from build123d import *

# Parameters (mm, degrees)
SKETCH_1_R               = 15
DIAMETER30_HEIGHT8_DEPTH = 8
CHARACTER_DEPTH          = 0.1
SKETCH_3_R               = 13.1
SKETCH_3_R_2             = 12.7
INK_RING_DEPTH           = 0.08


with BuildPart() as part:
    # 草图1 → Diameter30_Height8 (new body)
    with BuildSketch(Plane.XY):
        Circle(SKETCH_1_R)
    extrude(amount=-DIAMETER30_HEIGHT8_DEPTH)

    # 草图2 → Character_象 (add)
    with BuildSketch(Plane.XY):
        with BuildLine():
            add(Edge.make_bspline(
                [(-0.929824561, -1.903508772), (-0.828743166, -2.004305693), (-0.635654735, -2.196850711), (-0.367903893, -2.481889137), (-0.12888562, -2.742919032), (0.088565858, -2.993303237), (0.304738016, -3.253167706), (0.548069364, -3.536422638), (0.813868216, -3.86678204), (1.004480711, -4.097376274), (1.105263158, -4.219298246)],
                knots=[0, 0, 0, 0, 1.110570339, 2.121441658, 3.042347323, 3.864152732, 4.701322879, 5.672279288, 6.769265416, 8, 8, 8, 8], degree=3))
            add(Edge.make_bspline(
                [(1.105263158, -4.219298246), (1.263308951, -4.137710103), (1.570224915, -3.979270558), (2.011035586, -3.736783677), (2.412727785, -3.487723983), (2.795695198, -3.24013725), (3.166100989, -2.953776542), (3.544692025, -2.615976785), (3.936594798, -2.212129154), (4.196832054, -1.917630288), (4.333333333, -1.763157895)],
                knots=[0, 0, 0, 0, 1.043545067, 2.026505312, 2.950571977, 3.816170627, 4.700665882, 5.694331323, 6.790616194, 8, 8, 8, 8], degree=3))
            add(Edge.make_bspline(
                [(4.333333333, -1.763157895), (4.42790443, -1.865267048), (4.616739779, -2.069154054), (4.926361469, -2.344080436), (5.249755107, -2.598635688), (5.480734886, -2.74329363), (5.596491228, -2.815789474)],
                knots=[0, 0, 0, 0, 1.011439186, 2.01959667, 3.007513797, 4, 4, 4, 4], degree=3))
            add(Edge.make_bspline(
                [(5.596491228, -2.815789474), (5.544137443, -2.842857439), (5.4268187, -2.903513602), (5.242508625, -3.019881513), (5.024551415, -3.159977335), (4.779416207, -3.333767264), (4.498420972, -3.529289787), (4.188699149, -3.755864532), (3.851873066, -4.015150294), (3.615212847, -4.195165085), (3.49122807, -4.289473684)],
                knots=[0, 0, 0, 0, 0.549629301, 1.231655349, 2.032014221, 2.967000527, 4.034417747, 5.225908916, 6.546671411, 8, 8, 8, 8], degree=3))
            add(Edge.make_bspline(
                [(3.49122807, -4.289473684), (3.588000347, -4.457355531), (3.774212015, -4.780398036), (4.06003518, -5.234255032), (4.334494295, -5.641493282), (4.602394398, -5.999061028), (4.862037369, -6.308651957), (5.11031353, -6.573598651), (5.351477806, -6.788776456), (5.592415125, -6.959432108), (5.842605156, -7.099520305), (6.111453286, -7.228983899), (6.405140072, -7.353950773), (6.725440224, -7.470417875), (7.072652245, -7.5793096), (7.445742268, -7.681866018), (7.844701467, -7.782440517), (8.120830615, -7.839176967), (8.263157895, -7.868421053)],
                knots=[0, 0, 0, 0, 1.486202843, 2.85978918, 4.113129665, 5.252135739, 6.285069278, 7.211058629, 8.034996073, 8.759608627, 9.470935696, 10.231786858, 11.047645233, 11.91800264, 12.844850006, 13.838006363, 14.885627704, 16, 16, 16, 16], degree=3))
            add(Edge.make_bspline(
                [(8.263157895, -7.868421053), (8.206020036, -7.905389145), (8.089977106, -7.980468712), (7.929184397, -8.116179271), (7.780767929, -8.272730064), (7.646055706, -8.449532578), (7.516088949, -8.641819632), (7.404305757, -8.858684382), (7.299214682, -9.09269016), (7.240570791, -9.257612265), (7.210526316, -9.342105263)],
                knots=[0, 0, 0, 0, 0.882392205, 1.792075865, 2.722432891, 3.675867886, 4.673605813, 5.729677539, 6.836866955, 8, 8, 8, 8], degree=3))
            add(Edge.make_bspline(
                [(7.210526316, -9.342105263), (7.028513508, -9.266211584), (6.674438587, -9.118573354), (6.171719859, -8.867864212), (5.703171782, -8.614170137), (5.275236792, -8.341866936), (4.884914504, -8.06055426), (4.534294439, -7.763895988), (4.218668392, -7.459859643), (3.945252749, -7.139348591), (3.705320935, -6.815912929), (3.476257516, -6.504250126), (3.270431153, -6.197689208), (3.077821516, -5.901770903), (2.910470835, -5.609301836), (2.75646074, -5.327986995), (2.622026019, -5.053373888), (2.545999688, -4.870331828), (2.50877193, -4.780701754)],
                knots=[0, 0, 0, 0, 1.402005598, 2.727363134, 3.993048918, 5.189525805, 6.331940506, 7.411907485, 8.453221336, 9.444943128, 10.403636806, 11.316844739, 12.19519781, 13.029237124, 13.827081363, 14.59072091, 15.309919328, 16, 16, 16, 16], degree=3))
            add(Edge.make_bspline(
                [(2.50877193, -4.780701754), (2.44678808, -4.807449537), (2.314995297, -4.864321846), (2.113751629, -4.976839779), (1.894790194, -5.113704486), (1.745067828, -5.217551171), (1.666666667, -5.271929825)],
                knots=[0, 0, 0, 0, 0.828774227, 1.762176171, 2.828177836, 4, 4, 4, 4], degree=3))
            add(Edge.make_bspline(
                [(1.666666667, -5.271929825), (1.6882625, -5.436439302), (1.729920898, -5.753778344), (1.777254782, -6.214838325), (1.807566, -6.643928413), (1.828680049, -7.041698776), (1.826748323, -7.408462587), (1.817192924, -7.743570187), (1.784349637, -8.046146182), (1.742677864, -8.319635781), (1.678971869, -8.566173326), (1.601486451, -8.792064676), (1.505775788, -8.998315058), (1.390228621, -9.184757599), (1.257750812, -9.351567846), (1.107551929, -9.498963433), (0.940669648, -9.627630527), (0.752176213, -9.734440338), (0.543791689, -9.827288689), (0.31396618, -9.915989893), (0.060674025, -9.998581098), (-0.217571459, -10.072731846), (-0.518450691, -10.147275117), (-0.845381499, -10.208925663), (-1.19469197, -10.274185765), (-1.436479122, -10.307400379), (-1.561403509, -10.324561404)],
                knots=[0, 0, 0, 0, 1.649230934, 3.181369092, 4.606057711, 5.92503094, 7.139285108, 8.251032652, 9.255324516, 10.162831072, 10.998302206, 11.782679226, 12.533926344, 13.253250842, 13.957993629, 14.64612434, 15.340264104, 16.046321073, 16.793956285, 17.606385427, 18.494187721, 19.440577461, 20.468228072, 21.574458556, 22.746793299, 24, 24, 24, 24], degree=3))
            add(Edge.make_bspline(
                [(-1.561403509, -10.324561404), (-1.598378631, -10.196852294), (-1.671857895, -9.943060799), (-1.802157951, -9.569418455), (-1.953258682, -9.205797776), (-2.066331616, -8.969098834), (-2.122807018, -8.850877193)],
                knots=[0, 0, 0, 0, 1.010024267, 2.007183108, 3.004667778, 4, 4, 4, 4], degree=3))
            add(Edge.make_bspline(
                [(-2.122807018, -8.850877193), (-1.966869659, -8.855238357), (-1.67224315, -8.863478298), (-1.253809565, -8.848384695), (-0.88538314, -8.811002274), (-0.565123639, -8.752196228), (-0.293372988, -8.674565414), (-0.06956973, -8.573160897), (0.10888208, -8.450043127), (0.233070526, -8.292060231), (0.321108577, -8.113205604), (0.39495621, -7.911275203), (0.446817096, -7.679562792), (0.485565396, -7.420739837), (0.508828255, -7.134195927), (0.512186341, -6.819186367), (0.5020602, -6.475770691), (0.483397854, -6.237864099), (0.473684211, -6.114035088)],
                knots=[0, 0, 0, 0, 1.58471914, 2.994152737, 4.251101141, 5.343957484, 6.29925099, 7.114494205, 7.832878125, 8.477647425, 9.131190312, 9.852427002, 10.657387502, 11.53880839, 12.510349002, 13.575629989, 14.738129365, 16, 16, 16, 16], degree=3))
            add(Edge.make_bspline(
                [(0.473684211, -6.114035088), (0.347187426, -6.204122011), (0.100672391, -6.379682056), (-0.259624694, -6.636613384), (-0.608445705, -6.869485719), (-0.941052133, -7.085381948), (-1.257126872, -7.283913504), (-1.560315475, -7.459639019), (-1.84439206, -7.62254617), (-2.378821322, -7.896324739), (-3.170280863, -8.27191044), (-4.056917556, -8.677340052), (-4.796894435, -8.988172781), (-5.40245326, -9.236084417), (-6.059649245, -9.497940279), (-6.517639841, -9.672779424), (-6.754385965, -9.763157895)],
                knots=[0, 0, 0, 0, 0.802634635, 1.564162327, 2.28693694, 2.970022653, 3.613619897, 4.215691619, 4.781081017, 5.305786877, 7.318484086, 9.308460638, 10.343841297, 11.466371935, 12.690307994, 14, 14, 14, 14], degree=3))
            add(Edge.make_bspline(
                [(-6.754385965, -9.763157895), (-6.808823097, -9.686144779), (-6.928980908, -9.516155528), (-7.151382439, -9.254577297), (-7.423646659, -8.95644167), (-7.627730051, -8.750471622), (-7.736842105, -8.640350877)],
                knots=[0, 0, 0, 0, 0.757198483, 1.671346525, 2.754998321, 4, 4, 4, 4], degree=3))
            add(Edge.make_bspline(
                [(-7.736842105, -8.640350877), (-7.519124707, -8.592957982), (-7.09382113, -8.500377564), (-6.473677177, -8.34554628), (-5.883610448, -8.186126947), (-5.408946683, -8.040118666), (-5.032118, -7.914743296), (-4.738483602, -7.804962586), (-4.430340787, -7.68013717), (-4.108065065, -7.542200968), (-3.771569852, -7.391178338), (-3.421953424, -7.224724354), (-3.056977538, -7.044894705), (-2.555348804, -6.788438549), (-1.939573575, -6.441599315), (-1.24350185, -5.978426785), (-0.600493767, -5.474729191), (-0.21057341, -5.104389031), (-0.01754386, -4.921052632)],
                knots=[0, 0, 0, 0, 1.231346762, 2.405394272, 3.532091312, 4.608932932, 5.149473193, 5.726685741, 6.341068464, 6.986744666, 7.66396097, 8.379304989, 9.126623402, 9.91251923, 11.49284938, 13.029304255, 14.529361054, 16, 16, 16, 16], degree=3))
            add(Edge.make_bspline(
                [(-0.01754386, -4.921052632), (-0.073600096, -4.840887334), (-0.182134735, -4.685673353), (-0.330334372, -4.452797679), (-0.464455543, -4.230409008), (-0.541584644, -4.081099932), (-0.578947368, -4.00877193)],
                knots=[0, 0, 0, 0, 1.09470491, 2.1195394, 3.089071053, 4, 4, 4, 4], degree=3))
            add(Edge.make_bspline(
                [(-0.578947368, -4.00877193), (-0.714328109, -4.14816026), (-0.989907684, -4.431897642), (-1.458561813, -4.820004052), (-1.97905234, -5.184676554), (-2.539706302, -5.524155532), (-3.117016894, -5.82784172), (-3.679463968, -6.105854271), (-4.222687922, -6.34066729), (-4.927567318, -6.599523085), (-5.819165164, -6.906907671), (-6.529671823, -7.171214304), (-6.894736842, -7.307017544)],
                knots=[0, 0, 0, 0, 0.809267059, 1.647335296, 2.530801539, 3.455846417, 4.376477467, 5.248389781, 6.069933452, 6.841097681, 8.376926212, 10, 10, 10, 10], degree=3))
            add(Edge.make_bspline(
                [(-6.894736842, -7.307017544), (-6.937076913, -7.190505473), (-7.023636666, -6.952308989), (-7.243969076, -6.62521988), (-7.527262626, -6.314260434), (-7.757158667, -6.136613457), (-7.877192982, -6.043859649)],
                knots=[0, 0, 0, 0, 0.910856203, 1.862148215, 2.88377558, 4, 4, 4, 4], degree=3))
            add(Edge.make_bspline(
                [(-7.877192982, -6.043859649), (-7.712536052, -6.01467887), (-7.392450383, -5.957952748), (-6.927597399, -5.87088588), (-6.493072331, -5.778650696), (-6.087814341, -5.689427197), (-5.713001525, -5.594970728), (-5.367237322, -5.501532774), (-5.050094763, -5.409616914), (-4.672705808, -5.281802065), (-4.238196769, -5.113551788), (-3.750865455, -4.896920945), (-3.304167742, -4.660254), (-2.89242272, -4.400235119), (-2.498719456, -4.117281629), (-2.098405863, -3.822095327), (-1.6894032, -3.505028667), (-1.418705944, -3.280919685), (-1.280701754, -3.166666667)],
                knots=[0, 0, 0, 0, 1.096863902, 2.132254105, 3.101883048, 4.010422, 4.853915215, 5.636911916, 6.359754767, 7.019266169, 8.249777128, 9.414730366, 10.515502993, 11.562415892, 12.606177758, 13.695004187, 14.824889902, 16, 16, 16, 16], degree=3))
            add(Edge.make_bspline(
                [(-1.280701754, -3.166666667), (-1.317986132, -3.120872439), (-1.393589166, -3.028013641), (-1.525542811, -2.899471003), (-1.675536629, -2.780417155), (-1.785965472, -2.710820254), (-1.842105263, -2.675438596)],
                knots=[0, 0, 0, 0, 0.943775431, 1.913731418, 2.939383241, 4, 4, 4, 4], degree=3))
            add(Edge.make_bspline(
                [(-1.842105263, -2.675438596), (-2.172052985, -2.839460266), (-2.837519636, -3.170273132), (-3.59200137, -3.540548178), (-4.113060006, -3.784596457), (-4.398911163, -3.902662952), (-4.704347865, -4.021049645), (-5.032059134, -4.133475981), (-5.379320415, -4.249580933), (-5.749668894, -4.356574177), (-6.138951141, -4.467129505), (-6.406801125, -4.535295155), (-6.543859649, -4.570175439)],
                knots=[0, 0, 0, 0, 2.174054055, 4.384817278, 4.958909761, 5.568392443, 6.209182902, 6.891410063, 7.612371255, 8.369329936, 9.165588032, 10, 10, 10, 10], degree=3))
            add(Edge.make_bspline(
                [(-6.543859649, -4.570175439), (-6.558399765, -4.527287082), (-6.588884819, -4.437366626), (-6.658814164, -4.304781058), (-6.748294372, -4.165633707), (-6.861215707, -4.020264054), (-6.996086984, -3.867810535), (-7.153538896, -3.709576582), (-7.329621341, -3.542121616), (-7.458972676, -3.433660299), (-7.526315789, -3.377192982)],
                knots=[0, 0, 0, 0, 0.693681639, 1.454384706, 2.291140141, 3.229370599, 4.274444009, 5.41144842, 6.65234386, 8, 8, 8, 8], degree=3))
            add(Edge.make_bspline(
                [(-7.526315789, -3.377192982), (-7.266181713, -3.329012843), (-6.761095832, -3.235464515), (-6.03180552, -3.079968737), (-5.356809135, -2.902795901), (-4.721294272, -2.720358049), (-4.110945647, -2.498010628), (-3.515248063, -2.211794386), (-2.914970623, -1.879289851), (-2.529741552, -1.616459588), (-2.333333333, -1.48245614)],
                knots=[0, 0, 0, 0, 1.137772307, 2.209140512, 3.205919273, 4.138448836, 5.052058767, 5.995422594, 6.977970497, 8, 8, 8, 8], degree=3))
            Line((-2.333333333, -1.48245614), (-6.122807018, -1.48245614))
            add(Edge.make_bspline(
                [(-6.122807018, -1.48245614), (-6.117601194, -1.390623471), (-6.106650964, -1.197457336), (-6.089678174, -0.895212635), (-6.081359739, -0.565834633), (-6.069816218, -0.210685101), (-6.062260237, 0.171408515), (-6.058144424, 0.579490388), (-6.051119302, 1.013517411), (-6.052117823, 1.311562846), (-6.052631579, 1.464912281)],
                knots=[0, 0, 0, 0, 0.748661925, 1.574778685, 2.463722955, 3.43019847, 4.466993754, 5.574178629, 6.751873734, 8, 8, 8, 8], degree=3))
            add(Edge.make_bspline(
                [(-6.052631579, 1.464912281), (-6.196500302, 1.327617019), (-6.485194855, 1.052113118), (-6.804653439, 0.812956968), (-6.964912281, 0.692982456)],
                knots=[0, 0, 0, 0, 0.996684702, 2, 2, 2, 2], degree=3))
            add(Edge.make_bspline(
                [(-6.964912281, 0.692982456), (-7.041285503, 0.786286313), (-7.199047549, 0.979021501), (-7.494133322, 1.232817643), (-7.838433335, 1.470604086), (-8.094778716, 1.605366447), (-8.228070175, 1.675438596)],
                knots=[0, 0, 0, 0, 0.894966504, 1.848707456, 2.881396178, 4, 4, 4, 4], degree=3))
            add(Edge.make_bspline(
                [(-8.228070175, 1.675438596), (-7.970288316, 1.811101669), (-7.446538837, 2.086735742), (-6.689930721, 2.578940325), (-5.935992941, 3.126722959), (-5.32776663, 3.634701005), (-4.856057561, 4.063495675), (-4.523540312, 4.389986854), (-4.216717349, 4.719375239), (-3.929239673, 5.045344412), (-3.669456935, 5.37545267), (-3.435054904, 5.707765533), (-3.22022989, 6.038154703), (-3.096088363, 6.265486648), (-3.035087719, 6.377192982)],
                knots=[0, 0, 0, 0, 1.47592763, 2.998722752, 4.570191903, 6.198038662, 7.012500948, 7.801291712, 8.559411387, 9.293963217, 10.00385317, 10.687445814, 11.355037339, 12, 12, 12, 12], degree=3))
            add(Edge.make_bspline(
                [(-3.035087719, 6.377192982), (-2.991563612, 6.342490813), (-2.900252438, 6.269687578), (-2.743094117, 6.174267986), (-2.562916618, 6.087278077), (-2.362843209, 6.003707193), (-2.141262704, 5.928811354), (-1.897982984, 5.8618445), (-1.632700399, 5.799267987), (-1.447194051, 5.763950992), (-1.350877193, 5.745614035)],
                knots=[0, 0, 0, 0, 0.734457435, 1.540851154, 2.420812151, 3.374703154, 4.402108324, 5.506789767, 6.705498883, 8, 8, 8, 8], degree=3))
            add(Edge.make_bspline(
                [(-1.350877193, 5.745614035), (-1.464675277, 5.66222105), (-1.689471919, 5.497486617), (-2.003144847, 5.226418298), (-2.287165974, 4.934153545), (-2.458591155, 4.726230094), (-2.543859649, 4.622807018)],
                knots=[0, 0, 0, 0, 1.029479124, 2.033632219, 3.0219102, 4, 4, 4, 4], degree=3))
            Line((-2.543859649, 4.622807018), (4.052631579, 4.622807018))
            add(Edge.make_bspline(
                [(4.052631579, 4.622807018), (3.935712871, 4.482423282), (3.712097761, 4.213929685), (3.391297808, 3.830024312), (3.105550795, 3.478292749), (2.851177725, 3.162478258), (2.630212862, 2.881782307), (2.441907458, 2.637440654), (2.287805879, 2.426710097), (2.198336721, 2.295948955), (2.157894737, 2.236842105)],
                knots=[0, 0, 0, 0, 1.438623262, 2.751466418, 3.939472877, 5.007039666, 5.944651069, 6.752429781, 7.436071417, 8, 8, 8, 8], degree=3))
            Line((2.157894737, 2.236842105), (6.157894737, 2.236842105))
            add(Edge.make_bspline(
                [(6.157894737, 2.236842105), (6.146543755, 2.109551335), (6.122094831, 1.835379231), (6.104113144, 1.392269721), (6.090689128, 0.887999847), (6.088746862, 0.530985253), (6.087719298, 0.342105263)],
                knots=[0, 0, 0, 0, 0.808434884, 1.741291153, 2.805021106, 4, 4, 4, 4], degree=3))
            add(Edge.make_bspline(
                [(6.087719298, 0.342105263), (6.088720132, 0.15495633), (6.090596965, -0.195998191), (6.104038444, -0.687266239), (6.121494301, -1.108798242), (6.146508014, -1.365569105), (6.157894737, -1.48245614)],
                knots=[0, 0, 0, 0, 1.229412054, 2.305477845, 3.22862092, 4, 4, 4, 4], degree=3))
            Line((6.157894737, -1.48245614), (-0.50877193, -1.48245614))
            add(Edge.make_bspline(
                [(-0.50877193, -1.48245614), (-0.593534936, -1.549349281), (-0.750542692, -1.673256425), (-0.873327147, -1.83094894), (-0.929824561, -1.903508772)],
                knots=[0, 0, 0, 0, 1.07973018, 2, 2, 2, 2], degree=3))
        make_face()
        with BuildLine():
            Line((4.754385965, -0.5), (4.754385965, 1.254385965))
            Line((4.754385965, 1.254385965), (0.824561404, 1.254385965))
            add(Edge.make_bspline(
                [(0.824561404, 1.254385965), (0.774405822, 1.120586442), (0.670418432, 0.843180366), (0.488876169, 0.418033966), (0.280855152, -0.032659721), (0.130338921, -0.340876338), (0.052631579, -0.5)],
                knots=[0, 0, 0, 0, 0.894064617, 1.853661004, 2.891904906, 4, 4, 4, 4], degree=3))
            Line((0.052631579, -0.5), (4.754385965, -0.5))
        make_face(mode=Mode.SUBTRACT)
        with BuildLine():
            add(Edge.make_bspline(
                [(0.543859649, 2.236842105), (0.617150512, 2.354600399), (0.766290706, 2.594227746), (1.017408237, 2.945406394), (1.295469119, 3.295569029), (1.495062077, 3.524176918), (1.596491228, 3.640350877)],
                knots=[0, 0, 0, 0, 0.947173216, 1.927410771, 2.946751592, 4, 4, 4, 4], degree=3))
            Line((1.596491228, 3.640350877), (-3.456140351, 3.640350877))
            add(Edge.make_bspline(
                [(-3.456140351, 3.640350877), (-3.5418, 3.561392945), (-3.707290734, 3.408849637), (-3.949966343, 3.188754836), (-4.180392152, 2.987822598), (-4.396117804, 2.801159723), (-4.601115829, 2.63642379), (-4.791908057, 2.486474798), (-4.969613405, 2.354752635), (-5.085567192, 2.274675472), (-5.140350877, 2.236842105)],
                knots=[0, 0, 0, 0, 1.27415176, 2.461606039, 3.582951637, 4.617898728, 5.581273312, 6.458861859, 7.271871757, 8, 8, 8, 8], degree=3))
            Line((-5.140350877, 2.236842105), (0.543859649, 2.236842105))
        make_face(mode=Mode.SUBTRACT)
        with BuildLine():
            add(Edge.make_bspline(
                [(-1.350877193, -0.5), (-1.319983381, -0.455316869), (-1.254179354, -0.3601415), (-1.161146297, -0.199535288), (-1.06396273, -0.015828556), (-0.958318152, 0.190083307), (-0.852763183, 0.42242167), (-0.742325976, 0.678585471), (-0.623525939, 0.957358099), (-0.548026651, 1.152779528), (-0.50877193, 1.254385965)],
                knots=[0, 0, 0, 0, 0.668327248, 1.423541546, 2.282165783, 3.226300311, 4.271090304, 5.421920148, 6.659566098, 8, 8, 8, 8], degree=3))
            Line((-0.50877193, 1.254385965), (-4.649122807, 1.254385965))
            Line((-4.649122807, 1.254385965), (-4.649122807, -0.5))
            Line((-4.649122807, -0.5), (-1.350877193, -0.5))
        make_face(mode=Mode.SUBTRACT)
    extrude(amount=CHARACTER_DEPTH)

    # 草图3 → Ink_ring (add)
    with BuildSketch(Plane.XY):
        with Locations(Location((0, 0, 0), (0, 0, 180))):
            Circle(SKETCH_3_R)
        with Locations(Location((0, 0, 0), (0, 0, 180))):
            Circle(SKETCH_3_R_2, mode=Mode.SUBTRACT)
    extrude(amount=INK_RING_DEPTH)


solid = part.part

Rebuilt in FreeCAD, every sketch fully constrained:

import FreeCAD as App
import Part
import Sketcher

V = App.Vector

doc = App.newDocument("Part")
body = doc.addObject("PartDesign::Body", "Body")

# Sketch on XY plane
sketch1 = doc.addObject("Sketcher::SketchObject", "Sketch")
body.addObject(sketch1)
sketch1.AttachmentSupport = (doc.XY_Plane, [""])
sketch1.MapMode = "FlatFace"
sketch1.addGeometry(Part.Circle(V(0, 0, 0), V(0, 0, 1), 15), False)
sketch1.addConstraint(Sketcher.Constraint("Coincident", 0, 3, -1, 1))
sketch1.addConstraint(Sketcher.Constraint("Diameter", 0, 30.0))
pad1 = doc.addObject("PartDesign::Pad", "Pad")
body.addObject(pad1)
pad1.Profile = sketch1
pad1.Length = 8
pad1.Reversed = True

# Sketch on XY plane
sketch2 = doc.addObject("Sketcher::SketchObject", "Sketch001")
body.addObject(sketch2)
sketch2.AttachmentSupport = (doc.XY_Plane, [""])
sketch2.MapMode = "FlatFace"
sketch2.addGeometry(Part.BSplineCurve([V(-0.929825, -1.903509, 0), V(-0.828743, -2.004306, 0), V(-0.635655, -2.196851, 0), V(-0.367904, -2.481889, 0), V(-0.128886, -2.742919, 0), V(0.088566, -2.993303, 0), V(0.304738, -3.253168, 0), V(0.548069, -3.536423, 0), V(0.813868, -3.866782, 0), V(1.004481, -4.097376, 0), V(1.105263, -4.219298, 0)], [4, 1, 1, 1, 1, 1, 1, 1, 4], [0, 1.110570339, 2.121441658, 3.042347323, 3.864152732, 4.701322879, 5.672279288, 6.769265416, 8], False, 3, [1, 1, 1, 1, 1, 1, 1, 1, 1, 1, 1], False), False)
sketch2.addGeometry(Part.BSplineCurve([V(-0.508772, -1.482456, 0), V(-0.593535, -1.549349, 0), V(-0.750543, -1.673256, 0), V(-0.873327, -1.830949, 0), V(-0.929825, -1.903509, 0)], [4, 1, 4], [0, 1.07973018, 2], False, 3, [1, 1, 1, 1, 1], False), False)
sketch2.addGeometry(Part.LineSegment(V(-0.508772, -1.482456, 0), V(6.157895, -1.482456, 0)), False)
sketch2.addGeometry(Part.BSplineCurve([V(6.087719, 0.342105, 0), V(6.08872, 0.154956, 0), V(6.090597, -0.195998, 0), V(6.104038, -0.687266, 0), V(6.121494, -1.108798, 0), V(6.146508, -1.365569, 0), V(6.157895, -1.482456, 0)], [4, 1, 1, 1, 4], [0, 1.229412054, 2.305477845, 3.22862092, 4], False, 3, [1, 1, 1, 1, 1, 1, 1], False), False)
sketch2.addGeometry(Part.BSplineCurve([V(6.157895, 2.236842, 0), V(6.146544, 2.109551, 0), V(6.122095, 1.835379, 0), V(6.104113, 1.39227, 0), V(6.090689, 0.888, 0), V(6.088747, 0.530985, 0), V(6.087719, 0.342105, 0)], [4, 1, 1, 1, 4], [0, 0.808434884, 1.741291153, 2.805021106, 4], False, 3, [1, 1, 1, 1, 1, 1, 1], False), False)
sketch2.addGeometry(Part.LineSegment(V(6.157895, 2.236842, 0), V(2.157895, 2.236842, 0)), False)
sketch2.addGeometry(Part.BSplineCurve([V(4.052632, 4.622807, 0), V(3.935713, 4.482423, 0), V(3.712098, 4.21393, 0), V(3.391298, 3.830024, 0), V(3.105551, 3.478293, 0), V(2.851178, 3.162478, 0), V(2.630213, 2.881782, 0), V(2.441907, 2.637441, 0), V(2.287806, 2.42671, 0), V(2.198337, 2.295949, 0), V(2.157895, 2.236842, 0)], [4, 1, 1, 1, 1, 1, 1, 1, 4], [0, 1.438623262, 2.751466418, 3.939472877, 5.007039666, 5.944651069, 6.752429781, 7.436071417, 8], False, 3, [1, 1, 1, 1, 1, 1, 1, 1, 1, 1, 1], False), False)
sketch2.addGeometry(Part.LineSegment(V(4.052632, 4.622807, 0), V(-2.54386, 4.622807, 0)), False)
sketch2.addGeometry(Part.BSplineCurve([V(-1.350877, 5.745614, 0), V(-1.464675, 5.662221, 0), V(-1.689472, 5.497487, 0), V(-2.003145, 5.226418, 0), V(-2.287166, 4.934154, 0), V(-2.458591, 4.72623, 0), V(-2.54386, 4.622807, 0)], [4, 1, 1, 1, 4], [0, 1.029479124, 2.033632219, 3.0219102, 4], False, 3, [1, 1, 1, 1, 1, 1, 1], False), False)
sketch2.addGeometry(Part.BSplineCurve([V(-3.035088, 6.377193, 0), V(-2.991564, 6.342491, 0), V(-2.900252, 6.269688, 0), V(-2.743094, 6.174268, 0), V(-2.562917, 6.087278, 0), V(-2.362843, 6.003707, 0), V(-2.141263, 5.928811, 0), V(-1.897983, 5.861845, 0), V(-1.6327, 5.799268, 0), V(-1.447194, 5.763951, 0), V(-1.350877, 5.745614, 0)], [4, 1, 1, 1, 1, 1, 1, 1, 4], [0, 0.734457435, 1.540851154, 2.420812151, 3.374703154, 4.402108324, 5.506789767, 6.705498883, 8], False, 3, [1, 1, 1, 1, 1, 1, 1, 1, 1, 1, 1], False), False)
sketch2.addGeometry(Part.BSplineCurve([V(-8.22807, 1.675439, 0), V(-7.970288, 1.811102, 0), V(-7.446539, 2.086736, 0), V(-6.689931, 2.57894, 0), V(-5.935993, 3.126723, 0), V(-5.327767, 3.634701, 0), V(-4.856058, 4.063496, 0), V(-4.52354, 4.389987, 0), V(-4.216717, 4.719375, 0), V(-3.92924, 5.045344, 0), V(-3.669457, 5.375453, 0), V(-3.435055, 5.707766, 0), V(-3.22023, 6.038155, 0), V(-3.096088, 6.265487, 0), V(-3.035088, 6.377193, 0)], [4, 1, 1, 1, 1, 1, 1, 1, 1, 1, 1, 1, 4], [0, 1.47592763, 2.998722752, 4.570191903, 6.198038662, 7.012500948, 7.801291712, 8.559411387, 9.293963217, 10.00385317, 10.687445814, 11.355037339, 12], False, 3, [1, 1, 1, 1, 1, 1, 1, 1, 1, 1, 1, 1, 1, 1, 1], False), False)
sketch2.addGeometry(Part.BSplineCurve([V(-6.964912, 0.692982, 0), V(-7.041286, 0.786286, 0), V(-7.199048, 0.979022, 0), V(-7.494133, 1.232818, 0), V(-7.838433, 1.470604, 0), V(-8.094779, 1.605366, 0), V(-8.22807, 1.675439, 0)], [4, 1, 1, 1, 4], [0, 0.894966504, 1.848707456, 2.881396178, 4], False, 3, [1, 1, 1, 1, 1, 1, 1], False), False)
sketch2.addGeometry(Part.BSplineCurve([V(-6.052632, 1.464912, 0), V(-6.1965, 1.327617, 0), V(-6.485195, 1.052113, 0), V(-6.804653, 0.812957, 0), V(-6.964912, 0.692982, 0)], [4, 1, 4], [0, 0.996684702, 2], False, 3, [1, 1, 1, 1, 1], False), False)
sketch2.addGeometry(Part.BSplineCurve([V(-6.122807, -1.482456, 0), V(-6.117601, -1.390623, 0), V(-6.106651, -1.197457, 0), V(-6.089678, -0.895213, 0), V(-6.08136, -0.565835, 0), V(-6.069816, -0.210685, 0), V(-6.06226, 0.171409, 0), V(-6.058144, 0.57949, 0), V(-6.051119, 1.013517, 0), V(-6.052118, 1.311563, 0), V(-6.052632, 1.464912, 0)], [4, 1, 1, 1, 1, 1, 1, 1, 4], [0, 0.748661925, 1.574778685, 2.463722955, 3.43019847, 4.466993754, 5.574178629, 6.751873734, 8], False, 3, [1, 1, 1, 1, 1, 1, 1, 1, 1, 1, 1], False), False)
sketch2.addGeometry(Part.LineSegment(V(-6.122807, -1.482456, 0), V(-2.333333, -1.482456, 0)), False)
sketch2.addGeometry(Part.BSplineCurve([V(-7.526316, -3.377193, 0), V(-7.266182, -3.329013, 0), V(-6.761096, -3.235465, 0), V(-6.031806, -3.079969, 0), V(-5.356809, -2.902796, 0), V(-4.721294, -2.720358, 0), V(-4.110946, -2.498011, 0), V(-3.515248, -2.211794, 0), V(-2.914971, -1.87929, 0), V(-2.529742, -1.61646, 0), V(-2.333333, -1.482456, 0)], [4, 1, 1, 1, 1, 1, 1, 1, 4], [0, 1.137772307, 2.209140512, 3.205919273, 4.138448836, 5.052058767, 5.995422594, 6.977970497, 8], False, 3, [1, 1, 1, 1, 1, 1, 1, 1, 1, 1, 1], False), False)
sketch2.addGeometry(Part.BSplineCurve([V(-6.54386, -4.570175, 0), V(-6.5584, -4.527287, 0), V(-6.588885, -4.437367, 0), V(-6.658814, -4.304781, 0), V(-6.748294, -4.165634, 0), V(-6.861216, -4.020264, 0), V(-6.996087, -3.867811, 0), V(-7.153539, -3.709577, 0), V(-7.329621, -3.542122, 0), V(-7.458973, -3.43366, 0), V(-7.526316, -3.377193, 0)], [4, 1, 1, 1, 1, 1, 1, 1, 4], [0, 0.693681639, 1.454384706, 2.291140141, 3.229370599, 4.274444009, 5.41144842, 6.65234386, 8], False, 3, [1, 1, 1, 1, 1, 1, 1, 1, 1, 1, 1], False), False)
sketch2.addGeometry(Part.BSplineCurve([V(-1.842105, -2.675439, 0), V(-2.172053, -2.83946, 0), V(-2.83752, -3.170273, 0), V(-3.592001, -3.540548, 0), V(-4.11306, -3.784596, 0), V(-4.398911, -3.902663, 0), V(-4.704348, -4.02105, 0), V(-5.032059, -4.133476, 0), V(-5.37932, -4.249581, 0), V(-5.749669, -4.356574, 0), V(-6.138951, -4.46713, 0), V(-6.406801, -4.535295, 0), V(-6.54386, -4.570175, 0)], [4, 1, 1, 1, 1, 1, 1, 1, 1, 1, 4], [0, 2.174054055, 4.384817278, 4.958909761, 5.568392443, 6.209182902, 6.891410063, 7.612371255, 8.369329936, 9.165588032, 10], False, 3, [1, 1, 1, 1, 1, 1, 1, 1, 1, 1, 1, 1, 1], False), False)
sketch2.addGeometry(Part.BSplineCurve([V(-1.280702, -3.166667, 0), V(-1.317986, -3.120872, 0), V(-1.393589, -3.028014, 0), V(-1.525543, -2.899471, 0), V(-1.675537, -2.780417, 0), V(-1.785965, -2.71082, 0), V(-1.842105, -2.675439, 0)], [4, 1, 1, 1, 4], [0, 0.943775431, 1.913731418, 2.939383241, 4], False, 3, [1, 1, 1, 1, 1, 1, 1], False), False)
sketch2.addGeometry(Part.BSplineCurve([V(-7.877193, -6.04386, 0), V(-7.712536, -6.014679, 0), V(-7.39245, -5.957953, 0), V(-6.927597, -5.870886, 0), V(-6.493072, -5.778651, 0), V(-6.087814, -5.689427, 0), V(-5.713002, -5.594971, 0), V(-5.367237, -5.501533, 0), V(-5.050095, -5.409617, 0), V(-4.672706, -5.281802, 0), V(-4.238197, -5.113552, 0), V(-3.750865, -4.896921, 0), V(-3.304168, -4.660254, 0), V(-2.892423, -4.400235, 0), V(-2.498719, -4.117282, 0), V(-2.098406, -3.822095, 0), V(-1.689403, -3.505029, 0), V(-1.418706, -3.28092, 0), V(-1.280702, -3.166667, 0)], [4, 1, 1, 1, 1, 1, 1, 1, 1, 1, 1, 1, 1, 1, 1, 1, 4], [0, 1.096863902, 2.132254105, 3.101883048, 4.010422, 4.853915215, 5.636911916, 6.359754767, 7.019266169, 8.249777128, 9.414730366, 10.515502993, 11.562415892, 12.606177758, 13.695004187, 14.824889902, 16], False, 3, [1, 1, 1, 1, 1, 1, 1, 1, 1, 1, 1, 1, 1, 1, 1, 1, 1, 1, 1], False), False)
sketch2.addGeometry(Part.BSplineCurve([V(-6.894737, -7.307018, 0), V(-6.937077, -7.190505, 0), V(-7.023637, -6.952309, 0), V(-7.243969, -6.62522, 0), V(-7.527263, -6.31426, 0), V(-7.757159, -6.136613, 0), V(-7.877193, -6.04386, 0)], [4, 1, 1, 1, 4], [0, 0.910856203, 1.862148215, 2.88377558, 4], False, 3, [1, 1, 1, 1, 1, 1, 1], False), False)
sketch2.addGeometry(Part.BSplineCurve([V(-0.578947, -4.008772, 0), V(-0.714328, -4.14816, 0), V(-0.989908, -4.431898, 0), V(-1.458562, -4.820004, 0), V(-1.979052, -5.184677, 0), V(-2.539706, -5.524156, 0), V(-3.117017, -5.827842, 0), V(-3.679464, -6.105854, 0), V(-4.222688, -6.340667, 0), V(-4.927567, -6.599523, 0), V(-5.819165, -6.906908, 0), V(-6.529672, -7.171214, 0), V(-6.894737, -7.307018, 0)], [4, 1, 1, 1, 1, 1, 1, 1, 1, 1, 4], [0, 0.809267059, 1.647335296, 2.530801539, 3.455846417, 4.376477467, 5.248389781, 6.069933452, 6.841097681, 8.376926212, 10], False, 3, [1, 1, 1, 1, 1, 1, 1, 1, 1, 1, 1, 1, 1], False), False)
sketch2.addGeometry(Part.BSplineCurve([V(-0.017544, -4.921053, 0), V(-0.0736, -4.840887, 0), V(-0.182135, -4.685673, 0), V(-0.330334, -4.452798, 0), V(-0.464456, -4.230409, 0), V(-0.541585, -4.0811, 0), V(-0.578947, -4.008772, 0)], [4, 1, 1, 1, 4], [0, 1.09470491, 2.1195394, 3.089071053, 4], False, 3, [1, 1, 1, 1, 1, 1, 1], False), False)
sketch2.addGeometry(Part.BSplineCurve([V(-7.736842, -8.640351, 0), V(-7.519125, -8.592958, 0), V(-7.093821, -8.500378, 0), V(-6.473677, -8.345546, 0), V(-5.88361, -8.186127, 0), V(-5.408947, -8.040119, 0), V(-5.032118, -7.914743, 0), V(-4.738484, -7.804963, 0), V(-4.430341, -7.680137, 0), V(-4.108065, -7.542201, 0), V(-3.77157, -7.391178, 0), V(-3.421953, -7.224724, 0), V(-3.056978, -7.044895, 0), V(-2.555349, -6.788439, 0), V(-1.939574, -6.441599, 0), V(-1.243502, -5.978427, 0), V(-0.600494, -5.474729, 0), V(-0.210573, -5.104389, 0), V(-0.017544, -4.921053, 0)], [4, 1, 1, 1, 1, 1, 1, 1, 1, 1, 1, 1, 1, 1, 1, 1, 4], [0, 1.231346762, 2.405394272, 3.532091312, 4.608932932, 5.149473193, 5.726685741, 6.341068464, 6.986744666, 7.66396097, 8.379304989, 9.126623402, 9.91251923, 11.49284938, 13.029304255, 14.529361054, 16], False, 3, [1, 1, 1, 1, 1, 1, 1, 1, 1, 1, 1, 1, 1, 1, 1, 1, 1, 1, 1], False), False)
sketch2.addGeometry(Part.BSplineCurve([V(-6.754386, -9.763158, 0), V(-6.808823, -9.686145, 0), V(-6.928981, -9.516156, 0), V(-7.151382, -9.254577, 0), V(-7.423647, -8.956442, 0), V(-7.62773, -8.750472, 0), V(-7.736842, -8.640351, 0)], [4, 1, 1, 1, 4], [0, 0.757198483, 1.671346525, 2.754998321, 4], False, 3, [1, 1, 1, 1, 1, 1, 1], False), False)
sketch2.addGeometry(Part.BSplineCurve([V(0.473684, -6.114035, 0), V(0.347187, -6.204122, 0), V(0.100672, -6.379682, 0), V(-0.259625, -6.636613, 0), V(-0.608446, -6.869486, 0), V(-0.941052, -7.085382, 0), V(-1.257127, -7.283914, 0), V(-1.560315, -7.459639, 0), V(-1.844392, -7.622546, 0), V(-2.378821, -7.896325, 0), V(-3.170281, -8.27191, 0), V(-4.056918, -8.67734, 0), V(-4.796894, -8.988173, 0), V(-5.402453, -9.236084, 0), V(-6.059649, -9.49794, 0), V(-6.51764, -9.672779, 0), V(-6.754386, -9.763158, 0)], [4, 1, 1, 1, 1, 1, 1, 1, 1, 1, 1, 1, 1, 1, 4], [0, 0.802634635, 1.564162327, 2.28693694, 2.970022653, 3.613619897, 4.215691619, 4.781081017, 5.305786877, 7.318484086, 9.308460638, 10.343841297, 11.466371935, 12.690307994, 14], False, 3, [1, 1, 1, 1, 1, 1, 1, 1, 1, 1, 1, 1, 1, 1, 1, 1, 1], False), False)
sketch2.addGeometry(Part.BSplineCurve([V(-2.122807, -8.850877, 0), V(-1.96687, -8.855238, 0), V(-1.672243, -8.863478, 0), V(-1.25381, -8.848385, 0), V(-0.885383, -8.811002, 0), V(-0.565124, -8.752196, 0), V(-0.293373, -8.674565, 0), V(-0.06957, -8.573161, 0), V(0.108882, -8.450043, 0), V(0.233071, -8.29206, 0), V(0.321109, -8.113206, 0), V(0.394956, -7.911275, 0), V(0.446817, -7.679563, 0), V(0.485565, -7.42074, 0), V(0.508828, -7.134196, 0), V(0.512186, -6.819186, 0), V(0.50206, -6.475771, 0), V(0.483398, -6.237864, 0), V(0.473684, -6.114035, 0)], [4, 1, 1, 1, 1, 1, 1, 1, 1, 1, 1, 1, 1, 1, 1, 1, 4], [0, 1.58471914, 2.994152737, 4.251101141, 5.343957484, 6.29925099, 7.114494205, 7.832878125, 8.477647425, 9.131190312, 9.852427002, 10.657387502, 11.53880839, 12.510349002, 13.575629989, 14.738129365, 16], False, 3, [1, 1, 1, 1, 1, 1, 1, 1, 1, 1, 1, 1, 1, 1, 1, 1, 1, 1, 1], False), False)
sketch2.addGeometry(Part.BSplineCurve([V(-1.561404, -10.324561, 0), V(-1.598379, -10.196852, 0), V(-1.671858, -9.943061, 0), V(-1.802158, -9.569418, 0), V(-1.953259, -9.205798, 0), V(-2.066332, -8.969099, 0), V(-2.122807, -8.850877, 0)], [4, 1, 1, 1, 4], [0, 1.010024267, 2.007183108, 3.004667778, 4], False, 3, [1, 1, 1, 1, 1, 1, 1], False), False)
sketch2.addGeometry(Part.BSplineCurve([V(1.666667, -5.27193, 0), V(1.688262, -5.436439, 0), V(1.729921, -5.753778, 0), V(1.777255, -6.214838, 0), V(1.807566, -6.643928, 0), V(1.82868, -7.041699, 0), V(1.826748, -7.408463, 0), V(1.817193, -7.74357, 0), V(1.78435, -8.046146, 0), V(1.742678, -8.319636, 0), V(1.678972, -8.566173, 0), V(1.601486, -8.792065, 0), V(1.505776, -8.998315, 0), V(1.390229, -9.184758, 0), V(1.257751, -9.351568, 0), V(1.107552, -9.498963, 0), V(0.94067, -9.627631, 0), V(0.752176, -9.73444, 0), V(0.543792, -9.827289, 0), V(0.313966, -9.91599, 0), V(0.060674, -9.998581, 0), V(-0.217571, -10.072732, 0), V(-0.518451, -10.147275, 0), V(-0.845381, -10.208926, 0), V(-1.194692, -10.274186, 0), V(-1.436479, -10.3074, 0), V(-1.561404, -10.324561, 0)], [4, 1, 1, 1, 1, 1, 1, 1, 1, 1, 1, 1, 1, 1, 1, 1, 1, 1, 1, 1, 1, 1, 1, 1, 4], [0, 1.649230934, 3.181369092, 4.606057711, 5.92503094, 7.139285108, 8.251032652, 9.255324516, 10.162831072, 10.998302206, 11.782679226, 12.533926344, 13.253250842, 13.957993629, 14.64612434, 15.340264104, 16.046321073, 16.793956285, 17.606385427, 18.494187721, 19.440577461, 20.468228072, 21.574458556, 22.746793299, 24], False, 3, [1, 1, 1, 1, 1, 1, 1, 1, 1, 1, 1, 1, 1, 1, 1, 1, 1, 1, 1, 1, 1, 1, 1, 1, 1, 1, 1], False), False)
sketch2.addGeometry(Part.BSplineCurve([V(2.508772, -4.780702, 0), V(2.446788, -4.80745, 0), V(2.314995, -4.864322, 0), V(2.113752, -4.97684, 0), V(1.89479, -5.113704, 0), V(1.745068, -5.217551, 0), V(1.666667, -5.27193, 0)], [4, 1, 1, 1, 4], [0, 0.828774227, 1.762176171, 2.828177836, 4], False, 3, [1, 1, 1, 1, 1, 1, 1], False), False)
sketch2.addGeometry(Part.BSplineCurve([V(7.210526, -9.342105, 0), V(7.028514, -9.266212, 0), V(6.674439, -9.118573, 0), V(6.17172, -8.867864, 0), V(5.703172, -8.61417, 0), V(5.275237, -8.341867, 0), V(4.884915, -8.060554, 0), V(4.534294, -7.763896, 0), V(4.218668, -7.45986, 0), V(3.945253, -7.139349, 0), V(3.705321, -6.815913, 0), V(3.476258, -6.50425, 0), V(3.270431, -6.197689, 0), V(3.077822, -5.901771, 0), V(2.910471, -5.609302, 0), V(2.756461, -5.327987, 0), V(2.622026, -5.053374, 0), V(2.546, -4.870332, 0), V(2.508772, -4.780702, 0)], [4, 1, 1, 1, 1, 1, 1, 1, 1, 1, 1, 1, 1, 1, 1, 1, 4], [0, 1.402005598, 2.727363134, 3.993048918, 5.189525805, 6.331940506, 7.411907485, 8.453221336, 9.444943128, 10.403636806, 11.316844739, 12.19519781, 13.029237124, 13.827081363, 14.59072091, 15.309919328, 16], False, 3, [1, 1, 1, 1, 1, 1, 1, 1, 1, 1, 1, 1, 1, 1, 1, 1, 1, 1, 1], False), False)
sketch2.addGeometry(Part.BSplineCurve([V(8.263158, -7.868421, 0), V(8.20602, -7.905389, 0), V(8.089977, -7.980469, 0), V(7.929184, -8.116179, 0), V(7.780768, -8.27273, 0), V(7.646056, -8.449533, 0), V(7.516089, -8.64182, 0), V(7.404306, -8.858684, 0), V(7.299215, -9.09269, 0), V(7.240571, -9.257612, 0), V(7.210526, -9.342105, 0)], [4, 1, 1, 1, 1, 1, 1, 1, 4], [0, 0.882392205, 1.792075865, 2.722432891, 3.675867886, 4.673605813, 5.729677539, 6.836866955, 8], False, 3, [1, 1, 1, 1, 1, 1, 1, 1, 1, 1, 1], False), False)
sketch2.addGeometry(Part.BSplineCurve([V(3.491228, -4.289474, 0), V(3.588, -4.457356, 0), V(3.774212, -4.780398, 0), V(4.060035, -5.234255, 0), V(4.334494, -5.641493, 0), V(4.602394, -5.999061, 0), V(4.862037, -6.308652, 0), V(5.110314, -6.573599, 0), V(5.351478, -6.788776, 0), V(5.592415, -6.959432, 0), V(5.842605, -7.09952, 0), V(6.111453, -7.228984, 0), V(6.40514, -7.353951, 0), V(6.72544, -7.470418, 0), V(7.072652, -7.57931, 0), V(7.445742, -7.681866, 0), V(7.844701, -7.782441, 0), V(8.120831, -7.839177, 0), V(8.263158, -7.868421, 0)], [4, 1, 1, 1, 1, 1, 1, 1, 1, 1, 1, 1, 1, 1, 1, 1, 4], [0, 1.486202843, 2.85978918, 4.113129665, 5.252135739, 6.285069278, 7.211058629, 8.034996073, 8.759608627, 9.470935696, 10.231786858, 11.047645233, 11.91800264, 12.844850006, 13.838006363, 14.885627704, 16], False, 3, [1, 1, 1, 1, 1, 1, 1, 1, 1, 1, 1, 1, 1, 1, 1, 1, 1, 1, 1], False), False)
sketch2.addGeometry(Part.BSplineCurve([V(5.596491, -2.815789, 0), V(5.544137, -2.842857, 0), V(5.426819, -2.903514, 0), V(5.242509, -3.019882, 0), V(5.024551, -3.159977, 0), V(4.779416, -3.333767, 0), V(4.498421, -3.52929, 0), V(4.188699, -3.755865, 0), V(3.851873, -4.01515, 0), V(3.615213, -4.195165, 0), V(3.491228, -4.289474, 0)], [4, 1, 1, 1, 1, 1, 1, 1, 4], [0, 0.549629301, 1.231655349, 2.032014221, 2.967000527, 4.034417747, 5.225908916, 6.546671411, 8], False, 3, [1, 1, 1, 1, 1, 1, 1, 1, 1, 1, 1], False), False)
sketch2.addGeometry(Part.BSplineCurve([V(4.333333, -1.763158, 0), V(4.427904, -1.865267, 0), V(4.61674, -2.069154, 0), V(4.926361, -2.34408, 0), V(5.249755, -2.598636, 0), V(5.480735, -2.743294, 0), V(5.596491, -2.815789, 0)], [4, 1, 1, 1, 4], [0, 1.011439186, 2.01959667, 3.007513797, 4], False, 3, [1, 1, 1, 1, 1, 1, 1], False), False)
sketch2.addGeometry(Part.BSplineCurve([V(1.105263, -4.219298, 0), V(1.263309, -4.13771, 0), V(1.570225, -3.979271, 0), V(2.011036, -3.736784, 0), V(2.412728, -3.487724, 0), V(2.795695, -3.240137, 0), V(3.166101, -2.953777, 0), V(3.544692, -2.615977, 0), V(3.936595, -2.212129, 0), V(4.196832, -1.91763, 0), V(4.333333, -1.763158, 0)], [4, 1, 1, 1, 1, 1, 1, 1, 4], [0, 1.043545067, 2.026505312, 2.950571977, 3.816170627, 4.700665882, 5.694331323, 6.790616194, 8], False, 3, [1, 1, 1, 1, 1, 1, 1, 1, 1, 1, 1], False), False)
sketch2.addGeometry(Part.LineSegment(V(4.754386, -0.5, 0), V(0.052632, -0.5, 0)), False)
sketch2.addGeometry(Part.BSplineCurve([V(0.824561, 1.254386, 0), V(0.774406, 1.120586, 0), V(0.670418, 0.84318, 0), V(0.488876, 0.418034, 0), V(0.280855, -0.03266, 0), V(0.130339, -0.340876, 0), V(0.052632, -0.5, 0)], [4, 1, 1, 1, 4], [0, 0.894064617, 1.853661004, 2.891904906, 4], False, 3, [1, 1, 1, 1, 1, 1, 1], False), False)
sketch2.addGeometry(Part.LineSegment(V(0.824561, 1.254386, 0), V(4.754386, 1.254386, 0)), False)
sketch2.addGeometry(Part.LineSegment(V(4.754386, 1.254386, 0), V(4.754386, -0.5, 0)), False)
sketch2.addGeometry(Part.LineSegment(V(-1.350877, -0.5, 0), V(-4.649123, -0.5, 0)), False)
sketch2.addGeometry(Part.LineSegment(V(-4.649123, -0.5, 0), V(-4.649123, 1.254386, 0)), False)
sketch2.addGeometry(Part.LineSegment(V(-4.649123, 1.254386, 0), V(-0.508772, 1.254386, 0)), False)
sketch2.addGeometry(Part.BSplineCurve([V(-1.350877, -0.5, 0), V(-1.319983, -0.455317, 0), V(-1.254179, -0.360142, 0), V(-1.161146, -0.199535, 0), V(-1.063963, -0.015829, 0), V(-0.958318, 0.190083, 0), V(-0.852763, 0.422422, 0), V(-0.742326, 0.678585, 0), V(-0.623526, 0.957358, 0), V(-0.548027, 1.15278, 0), V(-0.508772, 1.254386, 0)], [4, 1, 1, 1, 1, 1, 1, 1, 4], [0, 0.668327248, 1.423541546, 2.282165783, 3.226300311, 4.271090304, 5.421920148, 6.659566098, 8], False, 3, [1, 1, 1, 1, 1, 1, 1, 1, 1, 1, 1], False), False)
sketch2.addGeometry(Part.LineSegment(V(0.54386, 2.236842, 0), V(-5.140351, 2.236842, 0)), False)
sketch2.addGeometry(Part.BSplineCurve([V(-3.45614, 3.640351, 0), V(-3.5418, 3.561393, 0), V(-3.707291, 3.40885, 0), V(-3.949966, 3.188755, 0), V(-4.180392, 2.987823, 0), V(-4.396118, 2.80116, 0), V(-4.601116, 2.636424, 0), V(-4.791908, 2.486475, 0), V(-4.969613, 2.354753, 0), V(-5.085567, 2.274675, 0), V(-5.140351, 2.236842, 0)], [4, 1, 1, 1, 1, 1, 1, 1, 4], [0, 1.27415176, 2.461606039, 3.582951637, 4.617898728, 5.581273312, 6.458861859, 7.271871757, 8], False, 3, [1, 1, 1, 1, 1, 1, 1, 1, 1, 1, 1], False), False)
sketch2.addGeometry(Part.LineSegment(V(-3.45614, 3.640351, 0), V(1.596491, 3.640351, 0)), False)
sketch2.addGeometry(Part.BSplineCurve([V(0.54386, 2.236842, 0), V(0.617151, 2.3546, 0), V(0.766291, 2.594228, 0), V(1.017408, 2.945406, 0), V(1.295469, 3.295569, 0), V(1.495062, 3.524177, 0), V(1.596491, 3.640351, 0)], [4, 1, 1, 1, 4], [0, 0.947173216, 1.927410771, 2.946751592, 4], False, 3, [1, 1, 1, 1, 1, 1, 1], False), False)
sketch2.addConstraint(Sketcher.Constraint("Block", 0))
sketch2.addConstraint(Sketcher.Constraint("Block", 1))
sketch2.addConstraint(Sketcher.Constraint("Block", 3))
sketch2.addConstraint(Sketcher.Constraint("Block", 4))
sketch2.addConstraint(Sketcher.Constraint("Block", 6))
sketch2.addConstraint(Sketcher.Constraint("Block", 8))
sketch2.addConstraint(Sketcher.Constraint("Block", 9))
sketch2.addConstraint(Sketcher.Constraint("Block", 10))
sketch2.addConstraint(Sketcher.Constraint("Block", 11))
sketch2.addConstraint(Sketcher.Constraint("Block", 12))
sketch2.addConstraint(Sketcher.Constraint("Block", 13))
sketch2.addConstraint(Sketcher.Constraint("Block", 15))
sketch2.addConstraint(Sketcher.Constraint("Block", 16))
sketch2.addConstraint(Sketcher.Constraint("Block", 17))
sketch2.addConstraint(Sketcher.Constraint("Block", 18))
sketch2.addConstraint(Sketcher.Constraint("Block", 19))
sketch2.addConstraint(Sketcher.Constraint("Block", 20))
sketch2.addConstraint(Sketcher.Constraint("Block", 21))
sketch2.addConstraint(Sketcher.Constraint("Block", 22))
sketch2.addConstraint(Sketcher.Constraint("Block", 23))
sketch2.addConstraint(Sketcher.Constraint("Block", 24))
sketch2.addConstraint(Sketcher.Constraint("Block", 25))
sketch2.addConstraint(Sketcher.Constraint("Block", 26))
sketch2.addConstraint(Sketcher.Constraint("Block", 27))
sketch2.addConstraint(Sketcher.Constraint("Block", 28))
sketch2.addConstraint(Sketcher.Constraint("Block", 29))
sketch2.addConstraint(Sketcher.Constraint("Block", 30))
sketch2.addConstraint(Sketcher.Constraint("Block", 31))
sketch2.addConstraint(Sketcher.Constraint("Block", 32))
sketch2.addConstraint(Sketcher.Constraint("Block", 33))
sketch2.addConstraint(Sketcher.Constraint("Block", 34))
sketch2.addConstraint(Sketcher.Constraint("Block", 35))
sketch2.addConstraint(Sketcher.Constraint("Block", 37))
sketch2.addConstraint(Sketcher.Constraint("Block", 43))
sketch2.addConstraint(Sketcher.Constraint("Block", 45))
sketch2.addConstraint(Sketcher.Constraint("Block", 47))
sketch2.addConstraint(Sketcher.Constraint("Coincident", 1, 1, 2, 1))
sketch2.addConstraint(Sketcher.Constraint("Coincident", 2, 2, 3, 2))
sketch2.addConstraint(Sketcher.Constraint("Coincident", 4, 1, 5, 1))
sketch2.addConstraint(Sketcher.Constraint("Coincident", 5, 2, 6, 2))
sketch2.addConstraint(Sketcher.Constraint("Coincident", 6, 1, 7, 1))
sketch2.addConstraint(Sketcher.Constraint("Coincident", 7, 2, 8, 2))
sketch2.addConstraint(Sketcher.Constraint("Coincident", 13, 1, 14, 1))
sketch2.addConstraint(Sketcher.Constraint("Coincident", 14, 2, 15, 2))
sketch2.addConstraint(Sketcher.Constraint("Coincident", 36, 2, 37, 2))
sketch2.addConstraint(Sketcher.Constraint("Coincident", 37, 1, 38, 1))
sketch2.addConstraint(Sketcher.Constraint("Coincident", 38, 2, 39, 1))
sketch2.addConstraint(Sketcher.Constraint("Coincident", 39, 2, 36, 1))
sketch2.addConstraint(Sketcher.Constraint("Coincident", 40, 2, 41, 1))
sketch2.addConstraint(Sketcher.Constraint("Coincident", 41, 2, 42, 1))
sketch2.addConstraint(Sketcher.Constraint("Coincident", 42, 2, 43, 2))
sketch2.addConstraint(Sketcher.Constraint("Coincident", 43, 1, 40, 1))
sketch2.addConstraint(Sketcher.Constraint("Coincident", 44, 2, 45, 2))
sketch2.addConstraint(Sketcher.Constraint("Coincident", 45, 1, 46, 1))
sketch2.addConstraint(Sketcher.Constraint("Coincident", 46, 2, 47, 2))
sketch2.addConstraint(Sketcher.Constraint("Coincident", 47, 1, 44, 1))
sketch2.addConstraint(Sketcher.Constraint("Horizontal", 36))
sketch2.addConstraint(Sketcher.Constraint("Horizontal", 38))
sketch2.addConstraint(Sketcher.Constraint("Vertical", 39))
sketch2.addConstraint(Sketcher.Constraint("Horizontal", 40))
sketch2.addConstraint(Sketcher.Constraint("Vertical", 41))
sketch2.addConstraint(Sketcher.Constraint("Horizontal", 42))
sketch2.addConstraint(Sketcher.Constraint("DistanceX", 42, 1, 42, 2, 4.140351))
sketch2.addConstraint(Sketcher.Constraint("DistanceX", 36, 2, 36, 1, 4.701754))
pad2 = doc.addObject("PartDesign::Pad", "Pad001")
body.addObject(pad2)
pad2.Profile = sketch2
pad2.Length = 0.1

# Sketch on XY plane
sketch3 = doc.addObject("Sketcher::SketchObject", "Sketch002")
body.addObject(sketch3)
sketch3.AttachmentSupport = (doc.XY_Plane, [""])
sketch3.MapMode = "FlatFace"
sketch3.addGeometry(Part.Circle(V(0, 0, 0), V(0, 0, 1), 13), False)
sketch3.addGeometry(Part.Circle(V(0, 0, 0), V(0, 0, 1), 13), False)
sketch3.addConstraint(Sketcher.Constraint("Coincident", 0, 3, -1, 1))
sketch3.addConstraint(Sketcher.Constraint("Coincident", 1, 3, -1, 1))
sketch3.addConstraint(Sketcher.Constraint("Diameter", 0, 26.2))
sketch3.addConstraint(Sketcher.Constraint("Diameter", 1, 25.4))
pad3 = doc.addObject("PartDesign::Pad", "Pad002")
body.addObject(pad3)
pad3.Profile = sketch3
pad3.Length = 0.08

doc.recompute()
